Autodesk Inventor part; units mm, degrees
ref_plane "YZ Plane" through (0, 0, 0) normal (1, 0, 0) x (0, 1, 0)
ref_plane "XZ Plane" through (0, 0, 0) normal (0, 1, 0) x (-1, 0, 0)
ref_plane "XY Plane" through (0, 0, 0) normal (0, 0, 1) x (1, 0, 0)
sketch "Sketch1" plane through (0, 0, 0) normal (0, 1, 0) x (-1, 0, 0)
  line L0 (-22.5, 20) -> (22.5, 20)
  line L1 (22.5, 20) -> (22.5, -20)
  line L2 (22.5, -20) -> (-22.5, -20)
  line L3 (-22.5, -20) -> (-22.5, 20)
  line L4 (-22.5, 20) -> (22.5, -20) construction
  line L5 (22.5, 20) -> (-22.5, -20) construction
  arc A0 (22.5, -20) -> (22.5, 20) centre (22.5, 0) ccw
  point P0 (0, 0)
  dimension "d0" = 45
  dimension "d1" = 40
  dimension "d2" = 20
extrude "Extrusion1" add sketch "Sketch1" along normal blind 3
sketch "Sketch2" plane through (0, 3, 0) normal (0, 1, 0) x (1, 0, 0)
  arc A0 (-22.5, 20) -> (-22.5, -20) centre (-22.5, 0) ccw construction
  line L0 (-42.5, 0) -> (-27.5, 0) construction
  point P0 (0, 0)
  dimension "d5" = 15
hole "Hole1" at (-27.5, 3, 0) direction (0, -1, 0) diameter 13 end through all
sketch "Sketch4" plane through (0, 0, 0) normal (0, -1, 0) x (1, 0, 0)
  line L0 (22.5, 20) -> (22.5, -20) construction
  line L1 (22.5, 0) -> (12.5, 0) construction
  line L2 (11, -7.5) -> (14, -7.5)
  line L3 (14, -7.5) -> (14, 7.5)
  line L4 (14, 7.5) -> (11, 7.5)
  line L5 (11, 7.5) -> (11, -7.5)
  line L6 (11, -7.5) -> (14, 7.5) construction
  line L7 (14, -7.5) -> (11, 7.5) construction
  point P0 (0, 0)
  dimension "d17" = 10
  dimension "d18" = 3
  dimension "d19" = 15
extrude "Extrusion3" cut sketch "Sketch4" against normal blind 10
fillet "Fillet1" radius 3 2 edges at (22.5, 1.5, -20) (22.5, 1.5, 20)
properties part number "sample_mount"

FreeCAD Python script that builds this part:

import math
import FreeCAD as App
import Part
import Sketcher

V = App.Vector


def edges_at(feature, points):
    """Names of the edges that pass closest to the given points."""
    edges = feature.Shape.Edges
    near = lambda p: min(range(len(edges)), key=lambda i: edges[i].distToShape(Part.Vertex(*p))[0])
    return sorted({f"Edge{near(p) + 1}" for p in points})


def add_polygon(sketch, points):
    """Adds a closed chain of lines whose ends are joined by coincident constraints."""
    first, n = sketch.GeometryCount, len(points)
    for a, b in zip(points, points[1:] + points[:1]):
        sketch.addGeometry(Part.LineSegment(App.Vector(*a, 0), App.Vector(*b, 0)), False)
    for i in range(n):
        sketch.addConstraint(Sketcher.Constraint("Coincident", first + i, 2, first + (i + 1) % n, 1))

doc = App.newDocument("Part")
body = doc.addObject("PartDesign::Body", "Body")

sketch1 = doc.addObject("Sketcher::SketchObject", "Sketch")
body.addObject(sketch1)
sketch1.AttachmentSupport = (doc.XZ_Plane, [""])
sketch1.MapMode = "FlatFace"
sketch1.addGeometry([
    Part.LineSegment(V(-22, 20, 0), V(22, 20, 0)),
    Part.LineSegment(V(22, 20, 0), V(22, -20, 0)),
    Part.LineSegment(V(22, -20, 0), V(-22, -20, 0)),
    Part.ArcOfCircle(Part.Circle(V(-22, 0, 0), V(0, 0, 1), 20), math.radians(90), math.radians(270)),
], False)
sketch1.addConstraint([
    Sketcher.Constraint("Coincident", 0, 2, 1, 1),
    Sketcher.Constraint("Coincident", 1, 2, 2, 1),
    Sketcher.Constraint("Tangent", 2, 2, 3, 2),
    Sketcher.Constraint("Tangent", 3, 1, 0, 1),
    Sketcher.Constraint("Horizontal", 0),
    Sketcher.Constraint("Vertical", 1),
    Sketcher.Constraint("Horizontal", 2),
    Sketcher.Constraint("Symmetric", 0, 2, 2, 2, -1, 1),
    Sketcher.Constraint("Radius", 3, 20.0),
    Sketcher.Constraint("DistanceX", 0, 1, 0, 2, 45.0),
])
pad1 = doc.addObject("PartDesign::Pad", "Pad")
body.addObject(pad1)
pad1.Profile = sketch1
pad1.Length = 3
pad1.Reversed = True

sketch2 = doc.addObject("Sketcher::SketchObject", "Sketch001")
body.addObject(sketch2)
sketch2.AttachmentSupport = (doc.XZ_Plane, [""])
sketch2.MapMode = "FlatFace"
sketch2.AttachmentOffset = App.Placement(V(0, 0, -3), App.Rotation())
sketch2.addGeometry(Part.Circle(V(-28, 0, 0), V(0, 0, 1), 6), False)
sketch2.addConstraint([
    Sketcher.Constraint("PointOnObject", 0, 3, -1),
    Sketcher.Constraint("Diameter", 0, 13.0),
    Sketcher.Constraint("DistanceX", 0, 3, -1, 1, 27.5),
])
doc.recompute()
hole = doc.addObject("PartDesign::Hole", "Hole")
body.addObject(hole)
hole.Profile = sketch2
hole.ThreadType = "None"
hole.Diameter = 13
hole.DepthType = "ThroughAll"
hole.Reversed = True

sketch3 = doc.addObject("Sketcher::SketchObject", "Sketch002")
body.addObject(sketch3)
sketch3.AttachmentSupport = (doc.XZ_Plane, [""])
sketch3.MapMode = "FlatFace"
add_polygon(sketch3, [(11, 7.5), (11, -7.5), (14, -7.5), (14, 7.5)])
sketch3.addConstraint([
    Sketcher.Constraint("Vertical", 0),
    Sketcher.Constraint("Horizontal", 1),
    Sketcher.Constraint("Vertical", 2),
    Sketcher.Constraint("Horizontal", 3),
    Sketcher.Constraint("DistanceX", 1, 1, 1, 2, 3.0),
    Sketcher.Constraint("DistanceY", 0, 2, 0, 1, 15.0),
    Sketcher.Constraint("DistanceX", -1, 1, 0, 2, 11.0),
    Sketcher.Constraint("DistanceY", 0, 2, -1, 1, 7.5),
])
pocket1 = doc.addObject("PartDesign::Pocket", "Pocket")
body.addObject(pocket1)
pocket1.Profile = sketch3
pocket1.Length = 10
doc.recompute()

fillet = doc.addObject("PartDesign::Fillet", "Fillet")
body.addObject(fillet)
fillet.Base = (pocket1, edges_at(pocket1, [(22.5, 1.5, -20), (22.5, 1.5, 20)]))
fillet.Radius = 3

doc.recompute()
